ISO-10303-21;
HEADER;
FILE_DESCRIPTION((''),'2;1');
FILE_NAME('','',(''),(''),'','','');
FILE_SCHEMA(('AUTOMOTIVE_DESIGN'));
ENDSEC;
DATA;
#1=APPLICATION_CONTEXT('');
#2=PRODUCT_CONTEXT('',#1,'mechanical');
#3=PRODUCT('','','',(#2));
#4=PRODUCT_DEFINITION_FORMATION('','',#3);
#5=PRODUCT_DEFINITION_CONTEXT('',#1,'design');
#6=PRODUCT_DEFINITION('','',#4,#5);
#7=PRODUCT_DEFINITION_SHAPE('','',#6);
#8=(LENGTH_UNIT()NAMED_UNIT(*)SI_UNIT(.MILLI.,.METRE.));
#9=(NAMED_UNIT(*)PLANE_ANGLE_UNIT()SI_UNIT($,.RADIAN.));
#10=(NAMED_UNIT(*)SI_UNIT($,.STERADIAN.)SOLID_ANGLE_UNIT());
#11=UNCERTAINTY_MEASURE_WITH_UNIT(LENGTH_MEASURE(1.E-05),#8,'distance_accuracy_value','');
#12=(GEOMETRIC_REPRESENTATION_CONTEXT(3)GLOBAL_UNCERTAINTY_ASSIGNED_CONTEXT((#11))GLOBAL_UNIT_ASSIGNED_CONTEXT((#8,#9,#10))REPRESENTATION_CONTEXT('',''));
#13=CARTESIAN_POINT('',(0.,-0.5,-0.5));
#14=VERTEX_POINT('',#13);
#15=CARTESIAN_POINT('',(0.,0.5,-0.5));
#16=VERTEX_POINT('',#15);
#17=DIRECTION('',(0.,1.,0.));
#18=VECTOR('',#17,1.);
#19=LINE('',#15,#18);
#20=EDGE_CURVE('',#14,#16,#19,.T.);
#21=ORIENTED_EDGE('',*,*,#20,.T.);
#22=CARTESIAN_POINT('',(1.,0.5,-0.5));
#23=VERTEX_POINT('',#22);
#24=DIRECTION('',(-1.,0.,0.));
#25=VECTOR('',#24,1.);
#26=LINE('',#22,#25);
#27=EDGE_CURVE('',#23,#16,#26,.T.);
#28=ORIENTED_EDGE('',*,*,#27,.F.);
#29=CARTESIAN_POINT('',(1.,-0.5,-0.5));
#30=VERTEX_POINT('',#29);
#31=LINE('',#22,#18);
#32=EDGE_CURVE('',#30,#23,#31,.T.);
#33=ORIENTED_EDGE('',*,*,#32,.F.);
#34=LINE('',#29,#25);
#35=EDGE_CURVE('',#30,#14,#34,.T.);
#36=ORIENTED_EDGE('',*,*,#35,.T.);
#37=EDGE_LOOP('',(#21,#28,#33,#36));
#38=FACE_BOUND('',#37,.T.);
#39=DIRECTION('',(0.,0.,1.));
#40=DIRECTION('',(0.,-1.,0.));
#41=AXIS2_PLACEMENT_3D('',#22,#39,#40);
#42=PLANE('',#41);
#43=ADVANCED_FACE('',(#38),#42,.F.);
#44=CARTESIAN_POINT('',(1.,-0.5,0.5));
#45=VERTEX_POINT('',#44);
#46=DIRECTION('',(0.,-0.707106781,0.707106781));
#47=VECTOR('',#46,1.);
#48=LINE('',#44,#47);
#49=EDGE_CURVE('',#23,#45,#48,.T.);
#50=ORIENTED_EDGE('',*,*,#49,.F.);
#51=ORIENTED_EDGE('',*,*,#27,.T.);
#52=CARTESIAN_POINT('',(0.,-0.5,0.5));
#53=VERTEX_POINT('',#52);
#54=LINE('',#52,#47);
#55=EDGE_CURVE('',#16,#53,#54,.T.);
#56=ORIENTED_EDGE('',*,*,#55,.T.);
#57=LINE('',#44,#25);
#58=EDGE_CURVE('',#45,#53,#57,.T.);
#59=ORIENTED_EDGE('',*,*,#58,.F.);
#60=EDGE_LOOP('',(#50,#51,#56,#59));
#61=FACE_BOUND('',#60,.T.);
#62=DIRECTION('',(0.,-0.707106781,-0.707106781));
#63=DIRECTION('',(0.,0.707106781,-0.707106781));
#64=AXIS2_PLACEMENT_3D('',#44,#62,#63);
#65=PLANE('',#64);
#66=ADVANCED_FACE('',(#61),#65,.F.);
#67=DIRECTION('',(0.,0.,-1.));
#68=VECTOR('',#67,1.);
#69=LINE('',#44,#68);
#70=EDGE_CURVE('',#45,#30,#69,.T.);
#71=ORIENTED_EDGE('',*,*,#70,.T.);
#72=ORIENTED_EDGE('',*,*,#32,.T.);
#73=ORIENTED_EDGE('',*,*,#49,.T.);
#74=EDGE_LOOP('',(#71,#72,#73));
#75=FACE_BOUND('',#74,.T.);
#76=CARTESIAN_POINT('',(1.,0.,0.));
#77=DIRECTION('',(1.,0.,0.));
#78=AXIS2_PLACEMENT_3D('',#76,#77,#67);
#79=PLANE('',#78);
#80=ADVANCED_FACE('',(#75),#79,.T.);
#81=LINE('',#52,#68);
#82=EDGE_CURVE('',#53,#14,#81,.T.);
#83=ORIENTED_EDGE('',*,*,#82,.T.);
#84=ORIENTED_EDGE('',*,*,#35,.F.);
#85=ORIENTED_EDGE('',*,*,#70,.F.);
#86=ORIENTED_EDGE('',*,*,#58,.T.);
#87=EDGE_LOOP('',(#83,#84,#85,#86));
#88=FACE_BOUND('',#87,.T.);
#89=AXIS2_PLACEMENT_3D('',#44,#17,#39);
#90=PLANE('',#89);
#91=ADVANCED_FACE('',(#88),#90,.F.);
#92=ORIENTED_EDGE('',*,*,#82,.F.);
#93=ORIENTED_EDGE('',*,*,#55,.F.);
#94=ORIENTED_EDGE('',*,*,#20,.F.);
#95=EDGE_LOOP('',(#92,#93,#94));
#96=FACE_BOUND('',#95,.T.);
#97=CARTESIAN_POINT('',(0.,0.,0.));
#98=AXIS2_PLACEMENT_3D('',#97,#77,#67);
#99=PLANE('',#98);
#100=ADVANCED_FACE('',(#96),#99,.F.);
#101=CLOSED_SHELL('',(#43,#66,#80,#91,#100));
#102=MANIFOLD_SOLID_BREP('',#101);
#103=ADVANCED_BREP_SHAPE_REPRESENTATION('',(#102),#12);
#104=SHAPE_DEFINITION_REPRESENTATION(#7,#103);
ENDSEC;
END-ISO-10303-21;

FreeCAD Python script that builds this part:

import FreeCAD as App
import Part
import Sketcher
from FreeCAD import Vector


def add_polygon(sketch, points):
    """Adds a closed chain of lines whose ends are joined by coincident constraints."""
    first, n = sketch.GeometryCount, len(points)
    for a, b in zip(points, points[1:] + points[:1]):
        sketch.addGeometry(Part.LineSegment(App.Vector(*a, 0), App.Vector(*b, 0)), False)
    for i in range(n):
        sketch.addConstraint(Sketcher.Constraint("Coincident", first + i, 2, first + (i + 1) % n, 1))

doc = App.newDocument("Part")
body = doc.addObject("PartDesign::Body", "Body")

sketch1 = body.newObject("Sketcher::SketchObject", "Sketch")
sketch1.AttachmentSupport = (doc.getObject("YZ_Plane"), [""])
sketch1.MapMode = "FlatFace"
add_polygon(sketch1, [(0.5, -0.5), (-0.5, 0.5), (-0.5, -0.5)])
sketch1.addConstraint([
    Sketcher.Constraint("Vertical", 1),
    Sketcher.Constraint("Horizontal", 2),
    Sketcher.Constraint("Symmetric", 0, 2, 2, 2, -1, 1),
    Sketcher.Constraint("Equal", 2, 1),
    Sketcher.Constraint("DistanceX", 2, 1, 2, 2, 1.0),
])
pad1 = body.newObject("PartDesign::Pad", "Pad")
pad1.Profile = sketch1
pad1.Length = 1

doc.recompute()
